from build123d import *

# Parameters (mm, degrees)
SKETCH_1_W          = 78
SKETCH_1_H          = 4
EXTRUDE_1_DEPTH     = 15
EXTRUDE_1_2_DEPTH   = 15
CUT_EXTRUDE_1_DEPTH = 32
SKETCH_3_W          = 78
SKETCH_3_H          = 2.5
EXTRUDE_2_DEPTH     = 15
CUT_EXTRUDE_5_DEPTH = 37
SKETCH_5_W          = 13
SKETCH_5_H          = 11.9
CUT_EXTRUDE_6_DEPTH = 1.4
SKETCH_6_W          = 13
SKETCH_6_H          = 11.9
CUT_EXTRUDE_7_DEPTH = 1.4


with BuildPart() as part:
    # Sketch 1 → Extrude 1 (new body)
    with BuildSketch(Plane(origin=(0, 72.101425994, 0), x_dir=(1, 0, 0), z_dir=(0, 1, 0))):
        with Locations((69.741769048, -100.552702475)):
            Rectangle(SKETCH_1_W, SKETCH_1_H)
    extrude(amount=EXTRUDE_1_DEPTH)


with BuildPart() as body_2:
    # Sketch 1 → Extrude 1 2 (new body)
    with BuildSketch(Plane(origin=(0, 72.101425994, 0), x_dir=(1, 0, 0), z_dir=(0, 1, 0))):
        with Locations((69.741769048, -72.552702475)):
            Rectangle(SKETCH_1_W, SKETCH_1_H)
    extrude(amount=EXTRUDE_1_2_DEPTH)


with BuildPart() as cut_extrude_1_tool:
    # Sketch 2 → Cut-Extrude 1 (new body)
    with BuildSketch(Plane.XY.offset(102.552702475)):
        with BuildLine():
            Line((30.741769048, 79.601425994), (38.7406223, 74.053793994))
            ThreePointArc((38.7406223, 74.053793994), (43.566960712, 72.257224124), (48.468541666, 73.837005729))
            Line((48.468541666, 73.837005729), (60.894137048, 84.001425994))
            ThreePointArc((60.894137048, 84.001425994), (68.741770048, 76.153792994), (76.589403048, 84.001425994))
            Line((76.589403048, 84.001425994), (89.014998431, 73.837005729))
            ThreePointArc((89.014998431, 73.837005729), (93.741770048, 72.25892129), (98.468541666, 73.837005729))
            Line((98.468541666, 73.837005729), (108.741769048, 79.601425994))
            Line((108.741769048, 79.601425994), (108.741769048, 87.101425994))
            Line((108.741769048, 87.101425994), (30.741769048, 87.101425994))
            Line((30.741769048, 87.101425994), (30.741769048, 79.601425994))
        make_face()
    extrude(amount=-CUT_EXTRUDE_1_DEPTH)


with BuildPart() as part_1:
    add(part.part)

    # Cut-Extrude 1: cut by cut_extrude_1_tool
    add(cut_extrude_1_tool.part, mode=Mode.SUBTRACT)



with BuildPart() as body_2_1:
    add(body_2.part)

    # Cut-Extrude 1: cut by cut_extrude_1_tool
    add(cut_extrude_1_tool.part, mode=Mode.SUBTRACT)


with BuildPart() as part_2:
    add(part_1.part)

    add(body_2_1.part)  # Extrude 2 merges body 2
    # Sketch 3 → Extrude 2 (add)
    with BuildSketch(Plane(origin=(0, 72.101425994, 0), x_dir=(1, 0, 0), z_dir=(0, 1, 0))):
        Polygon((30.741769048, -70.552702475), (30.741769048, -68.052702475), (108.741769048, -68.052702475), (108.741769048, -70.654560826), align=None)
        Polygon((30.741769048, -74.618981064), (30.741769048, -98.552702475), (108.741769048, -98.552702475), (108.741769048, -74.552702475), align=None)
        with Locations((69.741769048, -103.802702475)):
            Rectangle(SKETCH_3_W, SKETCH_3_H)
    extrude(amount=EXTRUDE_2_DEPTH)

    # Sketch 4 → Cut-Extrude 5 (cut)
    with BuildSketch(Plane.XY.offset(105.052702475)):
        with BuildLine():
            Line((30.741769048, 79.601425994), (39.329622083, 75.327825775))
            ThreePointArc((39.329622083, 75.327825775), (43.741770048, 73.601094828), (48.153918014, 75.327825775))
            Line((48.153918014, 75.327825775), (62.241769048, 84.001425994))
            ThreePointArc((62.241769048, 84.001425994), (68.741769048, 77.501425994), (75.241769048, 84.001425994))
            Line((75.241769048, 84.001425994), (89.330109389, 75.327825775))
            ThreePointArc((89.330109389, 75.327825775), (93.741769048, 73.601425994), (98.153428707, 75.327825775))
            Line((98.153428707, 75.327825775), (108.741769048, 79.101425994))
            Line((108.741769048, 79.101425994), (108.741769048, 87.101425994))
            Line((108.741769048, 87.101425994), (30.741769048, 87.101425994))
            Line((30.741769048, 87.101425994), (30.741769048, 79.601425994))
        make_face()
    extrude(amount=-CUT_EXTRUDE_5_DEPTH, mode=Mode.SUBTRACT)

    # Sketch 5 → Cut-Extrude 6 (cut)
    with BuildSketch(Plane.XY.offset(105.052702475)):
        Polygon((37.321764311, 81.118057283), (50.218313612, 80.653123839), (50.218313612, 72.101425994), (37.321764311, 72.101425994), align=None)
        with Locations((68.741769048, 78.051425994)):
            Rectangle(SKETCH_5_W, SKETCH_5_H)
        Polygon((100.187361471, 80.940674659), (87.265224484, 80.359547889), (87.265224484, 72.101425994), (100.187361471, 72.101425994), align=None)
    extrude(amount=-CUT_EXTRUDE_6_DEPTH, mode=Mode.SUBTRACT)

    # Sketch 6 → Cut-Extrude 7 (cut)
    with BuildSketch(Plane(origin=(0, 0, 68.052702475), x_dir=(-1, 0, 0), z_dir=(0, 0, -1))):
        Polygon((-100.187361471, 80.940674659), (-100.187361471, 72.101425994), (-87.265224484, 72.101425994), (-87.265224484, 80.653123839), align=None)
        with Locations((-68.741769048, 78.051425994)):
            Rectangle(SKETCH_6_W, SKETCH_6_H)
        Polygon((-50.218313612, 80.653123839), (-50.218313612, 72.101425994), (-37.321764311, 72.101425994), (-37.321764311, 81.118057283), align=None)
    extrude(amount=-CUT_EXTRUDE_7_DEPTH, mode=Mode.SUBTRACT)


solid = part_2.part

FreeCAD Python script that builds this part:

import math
import FreeCAD as App
import Part
import Sketcher

V = App.Vector
Q = App.Units.Quantity

doc = App.newDocument("Part")
body = doc.addObject("PartDesign::Body", "Body")

sketch1 = body.newObject("Sketcher::SketchObject", "Sketch")
sketch1.AttachmentSupport = (doc.getObject("XZ_Plane"), [""])
sketch1.MapMode = "FlatFace"
sketch1.AttachmentOffset = App.Placement(V(0, 0, -72.101426), App.Rotation())
sketch1.addGeometry([
    Part.LineSegment(V(30.7, 98.6, 0), V(30.7, 102.6, 0)),
    Part.LineSegment(V(30.7, 102.6, 0), V(108.7, 102.6, 0)),
    Part.LineSegment(V(108.7, 102.6, 0), V(108.7, 98.6, 0)),
    Part.LineSegment(V(108.7, 98.6, 0), V(30.7, 98.6, 0)),
], False)
sketch1.addConstraint([
    Sketcher.Constraint("Coincident", 0, 2, 1, 1),
    Sketcher.Constraint("Coincident", 1, 2, 2, 1),
    Sketcher.Constraint("Coincident", 2, 2, 3, 1),
    Sketcher.Constraint("Coincident", 3, 2, 0, 1),
    Sketcher.Constraint("Vertical", 0),
    Sketcher.Constraint("Horizontal", 1),
    Sketcher.Constraint("Vertical", 2),
    Sketcher.Constraint("Horizontal", 3),
    Sketcher.Constraint("DistanceX", 1, 1, 1, 2, Q("78 mm")),
    Sketcher.Constraint("DistanceY", 0, 1, 0, 2, Q("4 mm")),
    Sketcher.Constraint("DistanceX", -1, 1, 0, 2, Q("30.741769 mm")),
    Sketcher.Constraint("DistanceY", -1, 1, 0, 2, Q("102.552702 mm")),
])
pad1 = body.newObject("PartDesign::Pad", "Pad")
pad1.Profile = sketch1
pad1.Length = 15
pad1.Reversed = True
body2 = doc.addObject("PartDesign::Body", "Body001")

sketch2 = body2.newObject("Sketcher::SketchObject", "Sketch001")
sketch2.AttachmentSupport = (doc.getObject("XZ_Plane001"), [""])
sketch2.MapMode = "FlatFace"
sketch2.AttachmentOffset = App.Placement(V(0, 0, -72.101426), App.Rotation())
sketch2.addGeometry([
    Part.LineSegment(V(30.7, 70.6, 0), V(30.7, 74.6, 0)),
    Part.LineSegment(V(30.7, 74.6, 0), V(108.7, 74.6, 0)),
    Part.LineSegment(V(108.7, 74.6, 0), V(108.7, 70.6, 0)),
    Part.LineSegment(V(108.7, 70.6, 0), V(30.7, 70.6, 0)),
], False)
sketch2.addConstraint([
    Sketcher.Constraint("Coincident", 0, 2, 1, 1),
    Sketcher.Constraint("Coincident", 1, 2, 2, 1),
    Sketcher.Constraint("Coincident", 2, 2, 3, 1),
    Sketcher.Constraint("Coincident", 3, 2, 0, 1),
    Sketcher.Constraint("Vertical", 0),
    Sketcher.Constraint("Horizontal", 1),
    Sketcher.Constraint("Vertical", 2),
    Sketcher.Constraint("Horizontal", 3),
    Sketcher.Constraint("DistanceX", 1, 1, 1, 2, Q("78 mm")),
    Sketcher.Constraint("DistanceY", 0, 1, 0, 2, Q("4 mm")),
    Sketcher.Constraint("DistanceX", -1, 1, 0, 2, Q("30.741769 mm")),
    Sketcher.Constraint("DistanceY", -1, 1, 0, 2, Q("74.552702 mm")),
])
pad2 = body2.newObject("PartDesign::Pad", "Pad001")
pad2.Profile = sketch2
pad2.Length = 15
pad2.Reversed = True
body3 = doc.addObject("PartDesign::Body", "Body002")

sketch3 = body3.newObject("Sketcher::SketchObject", "Sketch002")
sketch3.AttachmentSupport = (doc.getObject("XY_Plane002"), [""])
sketch3.MapMode = "FlatFace"
sketch3.AttachmentOffset = App.Placement(V(0, 0, 102.552702), App.Rotation())
sketch3.addGeometry([
    Part.LineSegment(V(31, 80, 0), V(39, 74, 0)),
    Part.ArcOfCircle(Part.Circle(V(44, 80, 0), V(0, 0, 1), 8), math.radians(-130), math.radians(-53)),
    Part.LineSegment(V(48, 74, 0), V(61, 84, 0)),
    Part.ArcOfCircle(Part.Circle(V(69, 84, 0), V(0, 0, 1), 8), math.radians(180), math.radians(360)),
    Part.LineSegment(V(77, 84, 0), V(89, 74, 0)),
    Part.ArcOfCircle(Part.Circle(V(94, 80, 0), V(0, 0, 1), 8), math.radians(-127), math.radians(-53)),
    Part.LineSegment(V(98, 74, 0), V(109, 80, 0)),
    Part.LineSegment(V(109, 80, 0), V(109, 87, 0)),
    Part.LineSegment(V(109, 87, 0), V(31, 87, 0)),
    Part.LineSegment(V(31, 87, 0), V(31, 80, 0)),
], False)
sketch3.addConstraint([
    Sketcher.Constraint("Coincident", 0, 2, 1, 1),
    Sketcher.Constraint("Coincident", 1, 2, 2, 1),
    Sketcher.Constraint("Coincident", 2, 2, 3, 1),
    Sketcher.Constraint("Coincident", 3, 2, 4, 1),
    Sketcher.Constraint("Coincident", 4, 2, 5, 1),
    Sketcher.Constraint("Coincident", 5, 2, 6, 1),
    Sketcher.Constraint("Coincident", 6, 2, 7, 1),
    Sketcher.Constraint("Coincident", 7, 2, 8, 1),
    Sketcher.Constraint("Coincident", 8, 2, 9, 1),
    Sketcher.Constraint("Coincident", 9, 2, 0, 1),
    Sketcher.Constraint("Vertical", 7),
    Sketcher.Constraint("Horizontal", 8),
    Sketcher.Constraint("Vertical", 9),
    Sketcher.Constraint("Horizontal", 3, 3, 2, 2),
    Sketcher.Constraint("Horizontal", 2, 2, 3, 2),
    Sketcher.Constraint("Horizontal", 1, 2, 4, 2),
    Sketcher.Constraint("Horizontal", 4, 2, 5, 2),
    Sketcher.Constraint("Horizontal", 6, 2, 9, 2),
    Sketcher.Constraint("Equal", 2, 4),
    Sketcher.Constraint("DistanceX", 8, 2, 8, 1, Q("78 mm")),
    Sketcher.Constraint("DistanceY", 7, 1, 7, 2, Q("7.5 mm")),
    Sketcher.Constraint("DistanceX", 3, 3, 5, 3, Q("25 mm")),
    Sketcher.Constraint("DistanceX", 5, 3, 6, 2, Q("14.999999 mm")),
    Sketcher.Constraint("DistanceY", 6, 2, 3, 2, Q("4.4 mm")),
    Sketcher.Constraint("Radius", 1, Q("7.85304 mm")),
    Sketcher.Constraint("DistanceX", -1, 1, 4, 2, Q("89.014998 mm")),
    Sketcher.Constraint("Radius", 3, Q("7.847633 mm")),
    Sketcher.Constraint("Radius", 5, Q("7.867995 mm")),
    Sketcher.Constraint("DistanceY", 1, 3, 5, 3, Q("0.018601 mm")),
    Sketcher.Constraint("DistanceX", 0, 2, 1, 3, Q("5.001301 mm")),
    Sketcher.Constraint("DistanceX", -1, 1, 3, 3, Q("68.74177 mm")),
    Sketcher.Constraint("DistanceY", 1, 3, 3, 3, Q("3.893111 mm")),
    Sketcher.Constraint("DistanceY", -1, 1, 1, 3, Q("80.108315 mm")),
])
pad3 = body3.newObject("PartDesign::Pad", "Pad002")
pad3.Profile = sketch3
pad3.Length = 32
pad3.Reversed = True
doc.recompute()

body4 = doc.addObject("PartDesign::Body", "Body003")
body4.BaseFeature = body3
boolean = body.newObject("PartDesign::Boolean", "Boolean")
boolean.Type = "Cut"
boolean.addObjects([body4])
doc.recompute()

boolean2 = body2.newObject("PartDesign::Boolean", "Boolean001")
boolean2.Type = "Cut"
boolean2.addObjects([body3])
body.AllowCompound = True
doc.recompute()

boolean3 = body.newObject("PartDesign::Boolean", "Boolean002")
boolean3.Type = "Fuse"
boolean3.addObjects([body2])

sketch4 = body.newObject("Sketcher::SketchObject", "Sketch003")
sketch4.AttachmentSupport = (doc.getObject("XZ_Plane"), [""])
sketch4.MapMode = "FlatFace"
sketch4.AttachmentOffset = App.Placement(V(0, 0, -72.101426), App.Rotation())
sketch4.addGeometry([
    Part.LineSegment(V(30.7, 68.1, 0), V(30.7, 70.6, 0)),
    Part.LineSegment(V(30.7, 70.6, 0), V(108.7, 70.7, 0)),
    Part.LineSegment(V(108.7, 70.7, 0), V(108.7, 68.1, 0)),
    Part.LineSegment(V(108.7, 68.1, 0), V(30.7, 68.1, 0)),
    Part.LineSegment(V(30.7, 74.6, 0), V(30.7, 98.6, 0)),
    Part.LineSegment(V(30.7, 98.6, 0), V(108.7, 98.6, 0)),
    Part.LineSegment(V(108.7, 98.6, 0), V(108.7, 74.6, 0)),
    Part.LineSegment(V(108.7, 74.6, 0), V(30.7, 74.6, 0)),
    Part.LineSegment(V(30.7, 102.6, 0), V(30.7, 105.1, 0)),
    Part.LineSegment(V(30.7, 105.1, 0), V(108.7, 105.1, 0)),
    Part.LineSegment(V(108.7, 105.1, 0), V(108.7, 102.6, 0)),
    Part.LineSegment(V(108.7, 102.6, 0), V(30.7, 102.6, 0)),
], False)
sketch4.addConstraint([
    Sketcher.Constraint("Coincident", 0, 2, 1, 1),
    Sketcher.Constraint("Coincident", 1, 2, 2, 1),
    Sketcher.Constraint("Coincident", 2, 2, 3, 1),
    Sketcher.Constraint("Coincident", 3, 2, 0, 1),
    Sketcher.Constraint("Coincident", 4, 2, 5, 1),
    Sketcher.Constraint("Coincident", 5, 2, 6, 1),
    Sketcher.Constraint("Coincident", 6, 2, 7, 1),
    Sketcher.Constraint("Coincident", 7, 2, 4, 1),
    Sketcher.Constraint("Coincident", 8, 2, 9, 1),
    Sketcher.Constraint("Coincident", 9, 2, 10, 1),
    Sketcher.Constraint("Coincident", 10, 2, 11, 1),
    Sketcher.Constraint("Coincident", 11, 2, 8, 1),
    Sketcher.Constraint("Vertical", 0),
    Sketcher.Constraint("Vertical", 2),
    Sketcher.Constraint("Horizontal", 3),
    Sketcher.Constraint("Vertical", 4),
    Sketcher.Constraint("Horizontal", 5),
    Sketcher.Constraint("Vertical", 6),
    Sketcher.Constraint("Vertical", 8),
    Sketcher.Constraint("Horizontal", 9),
    Sketcher.Constraint("Vertical", 10),
    Sketcher.Constraint("Horizontal", 11),
    Sketcher.Constraint("Vertical", 3, 2, 4, 2),
    Sketcher.Constraint("Vertical", 2, 2, 5, 2),
    Sketcher.Constraint("Vertical", 7, 2, 8, 2),
    Sketcher.Constraint("Vertical", 6, 2, 9, 2),
    Sketcher.Constraint("Equal", 0, 8),
    Sketcher.Constraint("DistanceX", 3, 2, 3, 1, Q("78 mm")),
    Sketcher.Constraint("DistanceY", 6, 2, 6, 1, Q("24 mm")),
    Sketcher.Constraint("DistanceY", 0, 1, 0, 2, Q("2.5 mm")),
    Sketcher.Constraint("DistanceY", 0, 2, 4, 2, Q("28 mm")),
    Sketcher.Constraint("DistanceY", 3, 2, 8, 2, Q("37 mm")),
    Sketcher.Constraint("DistanceY", 2, 2, 2, 1, Q("2.601858 mm")),
    Sketcher.Constraint("DistanceY", 4, 1, 4, 2, Q("23.933721 mm")),
    Sketcher.Constraint("DistanceX", -1, 1, 0, 2, Q("30.741769 mm")),
    Sketcher.Constraint("DistanceY", -1, 1, 1, 2, Q("70.654561 mm")),
])
pad4 = body.newObject("PartDesign::Pad", "Pad003")
pad4.Profile = sketch4
pad4.Length = 15
pad4.Reversed = True

sketch5 = body.newObject("Sketcher::SketchObject", "Sketch004")
sketch5.AttachmentSupport = (doc.getObject("XY_Plane"), [""])
sketch5.MapMode = "FlatFace"
sketch5.AttachmentOffset = App.Placement(V(0, 0, 105.052702), App.Rotation())
sketch5.addGeometry([
    Part.LineSegment(V(31, 80, 0), V(39, 75, 0)),
    Part.ArcOfCircle(Part.Circle(V(44, 80, 0), V(0, 0, 1), 7), math.radians(-133), math.radians(-47)),
    Part.LineSegment(V(48, 75, 0), V(62, 84, 0)),
    Part.ArcOfCircle(Part.Circle(V(69, 84, 0), V(0, 0, 1), 6), math.radians(180), math.radians(360)),
    Part.LineSegment(V(75, 84, 0), V(89, 75, 0)),
    Part.ArcOfCircle(Part.Circle(V(94, 80, 0), V(0, 0, 1), 6), math.radians(-133), math.radians(-47)),
    Part.LineSegment(V(98, 75, 0), V(109, 79, 0)),
    Part.LineSegment(V(109, 79, 0), V(109, 87, 0)),
    Part.LineSegment(V(109, 87, 0), V(31, 87, 0)),
    Part.LineSegment(V(31, 87, 0), V(31, 80, 0)),
], False)
sketch5.addConstraint([
    Sketcher.Constraint("Coincident", 0, 2, 1, 1),
    Sketcher.Constraint("Coincident", 1, 2, 2, 1),
    Sketcher.Constraint("Coincident", 2, 2, 3, 1),
    Sketcher.Constraint("Coincident", 3, 2, 4, 1),
    Sketcher.Constraint("Coincident", 4, 2, 5, 1),
    Sketcher.Constraint("Coincident", 5, 2, 6, 1),
    Sketcher.Constraint("Coincident", 6, 2, 7, 1),
    Sketcher.Constraint("Coincident", 7, 2, 8, 1),
    Sketcher.Constraint("Coincident", 8, 2, 9, 1),
    Sketcher.Constraint("Coincident", 9, 2, 0, 1),
    Sketcher.Constraint("Vertical", 7),
    Sketcher.Constraint("Horizontal", 8),
    Sketcher.Constraint("Vertical", 9),
    Sketcher.Constraint("Equal", 3, 5),
    Sketcher.Constraint("Horizontal", 1, 3, 5, 3),
    Sketcher.Constraint("Horizontal", 0, 2, 1, 2),
    Sketcher.Constraint("Horizontal", 3, 3, 2, 2),
    Sketcher.Constraint("Horizontal", 2, 2, 3, 2),
    Sketcher.Constraint("Horizontal", 1, 2, 4, 2),
    Sketcher.Constraint("Horizontal", 4, 2, 5, 2),
    Sketcher.Constraint("Radius", 3, Q("6.5 mm")),
    Sketcher.Constraint("DistanceX", 8, 2, 8, 1, Q("78 mm")),
    Sketcher.Constraint("DistanceY", 7, 1, 7, 2, Q("8 mm")),
    Sketcher.Constraint("DistanceY", 9, 2, 9, 1, Q("7.5 mm")),
    Sketcher.Constraint("DistanceX", 1, 3, 3, 3, Q("24.999999 mm")),
    Sketcher.Constraint("DistanceX", 3, 3, 5, 3, Q("25 mm")),
    Sketcher.Constraint("DistanceX", 5, 3, 6, 2, Q("15 mm")),
    Sketcher.Constraint("DistanceY", 6, 2, 5, 3, Q("1 mm")),
    Sketcher.Constraint("DistanceY", 1, 3, 3, 3, Q("3.899999 mm")),
    Sketcher.Constraint("Radius", 1, Q("6.500332 mm")),
    Sketcher.Constraint("DistanceY", 0, 2, 1, 3, Q("4.773601 mm")),
    Sketcher.Constraint("DistanceX", -1, 1, 1, 3, Q("43.74177 mm")),
    Sketcher.Constraint("DistanceY", -1, 1, 1, 3, Q("80.101427 mm")),
])
pocket1 = body.newObject("PartDesign::Pocket", "Pocket")
pocket1.Profile = sketch5
pocket1.Length = 37

sketch6 = body.newObject("Sketcher::SketchObject", "Sketch005")
sketch6.AttachmentSupport = (doc.getObject("XY_Plane"), [""])
sketch6.MapMode = "FlatFace"
sketch6.AttachmentOffset = App.Placement(V(0, 0, 105.052702), App.Rotation())
sketch6.addGeometry([
    Part.LineSegment(V(50, 81, 0), V(37, 81, 0)),
    Part.LineSegment(V(37, 81, 0), V(37, 72, 0)),
    Part.LineSegment(V(37, 72, 0), V(50, 72, 0)),
    Part.LineSegment(V(50, 72, 0), V(50, 81, 0)),
    Part.LineSegment(V(62, 84, 0), V(62, 72, 0)),
    Part.LineSegment(V(62, 72, 0), V(75, 72, 0)),
    Part.LineSegment(V(75, 72, 0), V(75, 84, 0)),
    Part.LineSegment(V(75, 84, 0), V(62, 84, 0)),
    Part.LineSegment(V(100, 81, 0), V(87, 80, 0)),
    Part.LineSegment(V(87, 80, 0), V(87, 72, 0)),
    Part.LineSegment(V(87, 72, 0), V(100, 72, 0)),
    Part.LineSegment(V(100, 72, 0), V(100, 81, 0)),
], False)
sketch6.addConstraint([
    Sketcher.Constraint("Coincident", 0, 2, 1, 1),
    Sketcher.Constraint("Coincident", 1, 2, 2, 1),
    Sketcher.Constraint("Coincident", 2, 2, 3, 1),
    Sketcher.Constraint("Coincident", 3, 2, 0, 1),
    Sketcher.Constraint("Coincident", 4, 2, 5, 1),
    Sketcher.Constraint("Coincident", 5, 2, 6, 1),
    Sketcher.Constraint("Coincident", 6, 2, 7, 1),
    Sketcher.Constraint("Coincident", 7, 2, 4, 1),
    Sketcher.Constraint("Coincident", 8, 2, 9, 1),
    Sketcher.Constraint("Coincident", 9, 2, 10, 1),
    Sketcher.Constraint("Coincident", 10, 2, 11, 1),
    Sketcher.Constraint("Coincident", 11, 2, 8, 1),
    Sketcher.Constraint("Vertical", 1),
    Sketcher.Constraint("Horizontal", 2),
    Sketcher.Constraint("Vertical", 3),
    Sketcher.Constraint("Vertical", 4),
    Sketcher.Constraint("Horizontal", 5),
    Sketcher.Constraint("Vertical", 6),
    Sketcher.Constraint("Horizontal", 7),
    Sketcher.Constraint("Vertical", 9),
    Sketcher.Constraint("Horizontal", 10),
    Sketcher.Constraint("Vertical", 11),
    Sketcher.Constraint("Horizontal", 2, 2, 4, 2),
    Sketcher.Constraint("Horizontal", 5, 2, 9, 2),
    Sketcher.Constraint("DistanceX", 5, 1, 5, 2, Q("13 mm")),
    Sketcher.Constraint("DistanceY", 4, 2, 4, 1, Q("11.9 mm")),
    Sketcher.Constraint("DistanceX", 2, 1, 2, 2, Q("12.896549 mm")),
    Sketcher.Constraint("DistanceY", 1, 2, 1, 1, Q("9.016631 mm")),
    Sketcher.Constraint("DistanceY", 9, 2, 9, 1, Q("8.258122 mm")),
    Sketcher.Constraint("DistanceY", 11, 1, 11, 2, Q("8.839249 mm")),
    Sketcher.Constraint("DistanceX", 10, 1, 10, 2, Q("12.922137 mm")),
    Sketcher.Constraint("DistanceY", 3, 1, 3, 2, Q("8.551698 mm")),
    Sketcher.Constraint("DistanceX", -1, 1, 4, 2, Q("62.241769 mm")),
    Sketcher.Constraint("DistanceX", -1, 1, 10, 2, Q("100.187361 mm")),
    Sketcher.Constraint("DistanceX", 3, 2, 8, 2, Q("37.046911 mm")),
    Sketcher.Constraint("DistanceY", -1, 1, 0, 2, Q("81.118057 mm")),
])
pocket2 = body.newObject("PartDesign::Pocket", "Pocket001")
pocket2.Profile = sketch6
pocket2.Length = 1.4

sketch7 = body.newObject("Sketcher::SketchObject", "Sketch006")
sketch7.AttachmentSupport = (doc.getObject("XY_Plane"), [""])
sketch7.MapMode = "FlatFace"
sketch7.AttachmentOffset = App.Placement(V(0, 0, 68.052702), App.Rotation())
sketch7.addGeometry([
    Part.LineSegment(V(100, 81, 0), V(100, 72, 0)),
    Part.LineSegment(V(100, 72, 0), V(87, 72, 0)),
    Part.LineSegment(V(87, 72, 0), V(87, 81, 0)),
    Part.LineSegment(V(87, 81, 0), V(100, 81, 0)),
    Part.LineSegment(V(75, 84, 0), V(75, 72, 0)),
    Part.LineSegment(V(75, 72, 0), V(62, 72, 0)),
    Part.LineSegment(V(62, 72, 0), V(62, 84, 0)),
    Part.LineSegment(V(62, 84, 0), V(75, 84, 0)),
    Part.LineSegment(V(50, 81, 0), V(50, 72, 0)),
    Part.LineSegment(V(50, 72, 0), V(37, 72, 0)),
    Part.LineSegment(V(37, 72, 0), V(37, 81, 0)),
    Part.LineSegment(V(37, 81, 0), V(50, 81, 0)),
], False)
sketch7.addConstraint([
    Sketcher.Constraint("Coincident", 0, 2, 1, 1),
    Sketcher.Constraint("Coincident", 1, 2, 2, 1),
    Sketcher.Constraint("Coincident", 2, 2, 3, 1),
    Sketcher.Constraint("Coincident", 3, 2, 0, 1),
    Sketcher.Constraint("Coincident", 4, 2, 5, 1),
    Sketcher.Constraint("Coincident", 5, 2, 6, 1),
    Sketcher.Constraint("Coincident", 6, 2, 7, 1),
    Sketcher.Constraint("Coincident", 7, 2, 4, 1),
    Sketcher.Constraint("Coincident", 8, 2, 9, 1),
    Sketcher.Constraint("Coincident", 9, 2, 10, 1),
    Sketcher.Constraint("Coincident", 10, 2, 11, 1),
    Sketcher.Constraint("Coincident", 11, 2, 8, 1),
    Sketcher.Constraint("Vertical", 0),
    Sketcher.Constraint("Horizontal", 1),
    Sketcher.Constraint("Vertical", 2),
    Sketcher.Constraint("Vertical", 4),
    Sketcher.Constraint("Horizontal", 5),
    Sketcher.Constraint("Vertical", 6),
    Sketcher.Constraint("Horizontal", 7),
    Sketcher.Constraint("Vertical", 8),
    Sketcher.Constraint("Horizontal", 9),
    Sketcher.Constraint("Vertical", 10),
    Sketcher.Constraint("Horizontal", 1, 2, 4, 2),
    Sketcher.Constraint("Horizontal", 5, 2, 8, 2),
    Sketcher.Constraint("Horizontal", 2, 2, 11, 2),
    Sketcher.Constraint("DistanceX", 5, 2, 5, 1, Q("13 mm")),
    Sketcher.Constraint("DistanceY", 4, 2, 4, 1, Q("11.9 mm")),
    Sketcher.Constraint("DistanceX", 9, 2, 9, 1, Q("12.896549 mm")),
    Sketcher.Constraint("DistanceY", 0, 2, 0, 1, Q("8.839249 mm")),
    Sketcher.Constraint("DistanceY", 10, 1, 10, 2, Q("9.016631 mm")),
    Sketcher.Constraint("DistanceX", 1, 2, 1, 1, Q("12.922137 mm")),
    Sketcher.Constraint("DistanceY", 2, 1, 2, 2, Q("8.551698 mm")),
    Sketcher.Constraint("DistanceX", -1, 1, 0, 2, Q("100.187361 mm")),
    Sketcher.Constraint("DistanceX", -1, 1, 4, 2, Q("75.241769 mm")),
    Sketcher.Constraint("DistanceX", 8, 2, 1, 2, Q("37.046911 mm")),
    Sketcher.Constraint("DistanceY", -1, 1, 0, 2, Q("72.101426 mm")),
])
pocket3 = body.newObject("PartDesign::Pocket", "Pocket002")
pocket3.Profile = sketch7
pocket3.Length = 1.4
pocket3.Reversed = True

doc.recompute()
